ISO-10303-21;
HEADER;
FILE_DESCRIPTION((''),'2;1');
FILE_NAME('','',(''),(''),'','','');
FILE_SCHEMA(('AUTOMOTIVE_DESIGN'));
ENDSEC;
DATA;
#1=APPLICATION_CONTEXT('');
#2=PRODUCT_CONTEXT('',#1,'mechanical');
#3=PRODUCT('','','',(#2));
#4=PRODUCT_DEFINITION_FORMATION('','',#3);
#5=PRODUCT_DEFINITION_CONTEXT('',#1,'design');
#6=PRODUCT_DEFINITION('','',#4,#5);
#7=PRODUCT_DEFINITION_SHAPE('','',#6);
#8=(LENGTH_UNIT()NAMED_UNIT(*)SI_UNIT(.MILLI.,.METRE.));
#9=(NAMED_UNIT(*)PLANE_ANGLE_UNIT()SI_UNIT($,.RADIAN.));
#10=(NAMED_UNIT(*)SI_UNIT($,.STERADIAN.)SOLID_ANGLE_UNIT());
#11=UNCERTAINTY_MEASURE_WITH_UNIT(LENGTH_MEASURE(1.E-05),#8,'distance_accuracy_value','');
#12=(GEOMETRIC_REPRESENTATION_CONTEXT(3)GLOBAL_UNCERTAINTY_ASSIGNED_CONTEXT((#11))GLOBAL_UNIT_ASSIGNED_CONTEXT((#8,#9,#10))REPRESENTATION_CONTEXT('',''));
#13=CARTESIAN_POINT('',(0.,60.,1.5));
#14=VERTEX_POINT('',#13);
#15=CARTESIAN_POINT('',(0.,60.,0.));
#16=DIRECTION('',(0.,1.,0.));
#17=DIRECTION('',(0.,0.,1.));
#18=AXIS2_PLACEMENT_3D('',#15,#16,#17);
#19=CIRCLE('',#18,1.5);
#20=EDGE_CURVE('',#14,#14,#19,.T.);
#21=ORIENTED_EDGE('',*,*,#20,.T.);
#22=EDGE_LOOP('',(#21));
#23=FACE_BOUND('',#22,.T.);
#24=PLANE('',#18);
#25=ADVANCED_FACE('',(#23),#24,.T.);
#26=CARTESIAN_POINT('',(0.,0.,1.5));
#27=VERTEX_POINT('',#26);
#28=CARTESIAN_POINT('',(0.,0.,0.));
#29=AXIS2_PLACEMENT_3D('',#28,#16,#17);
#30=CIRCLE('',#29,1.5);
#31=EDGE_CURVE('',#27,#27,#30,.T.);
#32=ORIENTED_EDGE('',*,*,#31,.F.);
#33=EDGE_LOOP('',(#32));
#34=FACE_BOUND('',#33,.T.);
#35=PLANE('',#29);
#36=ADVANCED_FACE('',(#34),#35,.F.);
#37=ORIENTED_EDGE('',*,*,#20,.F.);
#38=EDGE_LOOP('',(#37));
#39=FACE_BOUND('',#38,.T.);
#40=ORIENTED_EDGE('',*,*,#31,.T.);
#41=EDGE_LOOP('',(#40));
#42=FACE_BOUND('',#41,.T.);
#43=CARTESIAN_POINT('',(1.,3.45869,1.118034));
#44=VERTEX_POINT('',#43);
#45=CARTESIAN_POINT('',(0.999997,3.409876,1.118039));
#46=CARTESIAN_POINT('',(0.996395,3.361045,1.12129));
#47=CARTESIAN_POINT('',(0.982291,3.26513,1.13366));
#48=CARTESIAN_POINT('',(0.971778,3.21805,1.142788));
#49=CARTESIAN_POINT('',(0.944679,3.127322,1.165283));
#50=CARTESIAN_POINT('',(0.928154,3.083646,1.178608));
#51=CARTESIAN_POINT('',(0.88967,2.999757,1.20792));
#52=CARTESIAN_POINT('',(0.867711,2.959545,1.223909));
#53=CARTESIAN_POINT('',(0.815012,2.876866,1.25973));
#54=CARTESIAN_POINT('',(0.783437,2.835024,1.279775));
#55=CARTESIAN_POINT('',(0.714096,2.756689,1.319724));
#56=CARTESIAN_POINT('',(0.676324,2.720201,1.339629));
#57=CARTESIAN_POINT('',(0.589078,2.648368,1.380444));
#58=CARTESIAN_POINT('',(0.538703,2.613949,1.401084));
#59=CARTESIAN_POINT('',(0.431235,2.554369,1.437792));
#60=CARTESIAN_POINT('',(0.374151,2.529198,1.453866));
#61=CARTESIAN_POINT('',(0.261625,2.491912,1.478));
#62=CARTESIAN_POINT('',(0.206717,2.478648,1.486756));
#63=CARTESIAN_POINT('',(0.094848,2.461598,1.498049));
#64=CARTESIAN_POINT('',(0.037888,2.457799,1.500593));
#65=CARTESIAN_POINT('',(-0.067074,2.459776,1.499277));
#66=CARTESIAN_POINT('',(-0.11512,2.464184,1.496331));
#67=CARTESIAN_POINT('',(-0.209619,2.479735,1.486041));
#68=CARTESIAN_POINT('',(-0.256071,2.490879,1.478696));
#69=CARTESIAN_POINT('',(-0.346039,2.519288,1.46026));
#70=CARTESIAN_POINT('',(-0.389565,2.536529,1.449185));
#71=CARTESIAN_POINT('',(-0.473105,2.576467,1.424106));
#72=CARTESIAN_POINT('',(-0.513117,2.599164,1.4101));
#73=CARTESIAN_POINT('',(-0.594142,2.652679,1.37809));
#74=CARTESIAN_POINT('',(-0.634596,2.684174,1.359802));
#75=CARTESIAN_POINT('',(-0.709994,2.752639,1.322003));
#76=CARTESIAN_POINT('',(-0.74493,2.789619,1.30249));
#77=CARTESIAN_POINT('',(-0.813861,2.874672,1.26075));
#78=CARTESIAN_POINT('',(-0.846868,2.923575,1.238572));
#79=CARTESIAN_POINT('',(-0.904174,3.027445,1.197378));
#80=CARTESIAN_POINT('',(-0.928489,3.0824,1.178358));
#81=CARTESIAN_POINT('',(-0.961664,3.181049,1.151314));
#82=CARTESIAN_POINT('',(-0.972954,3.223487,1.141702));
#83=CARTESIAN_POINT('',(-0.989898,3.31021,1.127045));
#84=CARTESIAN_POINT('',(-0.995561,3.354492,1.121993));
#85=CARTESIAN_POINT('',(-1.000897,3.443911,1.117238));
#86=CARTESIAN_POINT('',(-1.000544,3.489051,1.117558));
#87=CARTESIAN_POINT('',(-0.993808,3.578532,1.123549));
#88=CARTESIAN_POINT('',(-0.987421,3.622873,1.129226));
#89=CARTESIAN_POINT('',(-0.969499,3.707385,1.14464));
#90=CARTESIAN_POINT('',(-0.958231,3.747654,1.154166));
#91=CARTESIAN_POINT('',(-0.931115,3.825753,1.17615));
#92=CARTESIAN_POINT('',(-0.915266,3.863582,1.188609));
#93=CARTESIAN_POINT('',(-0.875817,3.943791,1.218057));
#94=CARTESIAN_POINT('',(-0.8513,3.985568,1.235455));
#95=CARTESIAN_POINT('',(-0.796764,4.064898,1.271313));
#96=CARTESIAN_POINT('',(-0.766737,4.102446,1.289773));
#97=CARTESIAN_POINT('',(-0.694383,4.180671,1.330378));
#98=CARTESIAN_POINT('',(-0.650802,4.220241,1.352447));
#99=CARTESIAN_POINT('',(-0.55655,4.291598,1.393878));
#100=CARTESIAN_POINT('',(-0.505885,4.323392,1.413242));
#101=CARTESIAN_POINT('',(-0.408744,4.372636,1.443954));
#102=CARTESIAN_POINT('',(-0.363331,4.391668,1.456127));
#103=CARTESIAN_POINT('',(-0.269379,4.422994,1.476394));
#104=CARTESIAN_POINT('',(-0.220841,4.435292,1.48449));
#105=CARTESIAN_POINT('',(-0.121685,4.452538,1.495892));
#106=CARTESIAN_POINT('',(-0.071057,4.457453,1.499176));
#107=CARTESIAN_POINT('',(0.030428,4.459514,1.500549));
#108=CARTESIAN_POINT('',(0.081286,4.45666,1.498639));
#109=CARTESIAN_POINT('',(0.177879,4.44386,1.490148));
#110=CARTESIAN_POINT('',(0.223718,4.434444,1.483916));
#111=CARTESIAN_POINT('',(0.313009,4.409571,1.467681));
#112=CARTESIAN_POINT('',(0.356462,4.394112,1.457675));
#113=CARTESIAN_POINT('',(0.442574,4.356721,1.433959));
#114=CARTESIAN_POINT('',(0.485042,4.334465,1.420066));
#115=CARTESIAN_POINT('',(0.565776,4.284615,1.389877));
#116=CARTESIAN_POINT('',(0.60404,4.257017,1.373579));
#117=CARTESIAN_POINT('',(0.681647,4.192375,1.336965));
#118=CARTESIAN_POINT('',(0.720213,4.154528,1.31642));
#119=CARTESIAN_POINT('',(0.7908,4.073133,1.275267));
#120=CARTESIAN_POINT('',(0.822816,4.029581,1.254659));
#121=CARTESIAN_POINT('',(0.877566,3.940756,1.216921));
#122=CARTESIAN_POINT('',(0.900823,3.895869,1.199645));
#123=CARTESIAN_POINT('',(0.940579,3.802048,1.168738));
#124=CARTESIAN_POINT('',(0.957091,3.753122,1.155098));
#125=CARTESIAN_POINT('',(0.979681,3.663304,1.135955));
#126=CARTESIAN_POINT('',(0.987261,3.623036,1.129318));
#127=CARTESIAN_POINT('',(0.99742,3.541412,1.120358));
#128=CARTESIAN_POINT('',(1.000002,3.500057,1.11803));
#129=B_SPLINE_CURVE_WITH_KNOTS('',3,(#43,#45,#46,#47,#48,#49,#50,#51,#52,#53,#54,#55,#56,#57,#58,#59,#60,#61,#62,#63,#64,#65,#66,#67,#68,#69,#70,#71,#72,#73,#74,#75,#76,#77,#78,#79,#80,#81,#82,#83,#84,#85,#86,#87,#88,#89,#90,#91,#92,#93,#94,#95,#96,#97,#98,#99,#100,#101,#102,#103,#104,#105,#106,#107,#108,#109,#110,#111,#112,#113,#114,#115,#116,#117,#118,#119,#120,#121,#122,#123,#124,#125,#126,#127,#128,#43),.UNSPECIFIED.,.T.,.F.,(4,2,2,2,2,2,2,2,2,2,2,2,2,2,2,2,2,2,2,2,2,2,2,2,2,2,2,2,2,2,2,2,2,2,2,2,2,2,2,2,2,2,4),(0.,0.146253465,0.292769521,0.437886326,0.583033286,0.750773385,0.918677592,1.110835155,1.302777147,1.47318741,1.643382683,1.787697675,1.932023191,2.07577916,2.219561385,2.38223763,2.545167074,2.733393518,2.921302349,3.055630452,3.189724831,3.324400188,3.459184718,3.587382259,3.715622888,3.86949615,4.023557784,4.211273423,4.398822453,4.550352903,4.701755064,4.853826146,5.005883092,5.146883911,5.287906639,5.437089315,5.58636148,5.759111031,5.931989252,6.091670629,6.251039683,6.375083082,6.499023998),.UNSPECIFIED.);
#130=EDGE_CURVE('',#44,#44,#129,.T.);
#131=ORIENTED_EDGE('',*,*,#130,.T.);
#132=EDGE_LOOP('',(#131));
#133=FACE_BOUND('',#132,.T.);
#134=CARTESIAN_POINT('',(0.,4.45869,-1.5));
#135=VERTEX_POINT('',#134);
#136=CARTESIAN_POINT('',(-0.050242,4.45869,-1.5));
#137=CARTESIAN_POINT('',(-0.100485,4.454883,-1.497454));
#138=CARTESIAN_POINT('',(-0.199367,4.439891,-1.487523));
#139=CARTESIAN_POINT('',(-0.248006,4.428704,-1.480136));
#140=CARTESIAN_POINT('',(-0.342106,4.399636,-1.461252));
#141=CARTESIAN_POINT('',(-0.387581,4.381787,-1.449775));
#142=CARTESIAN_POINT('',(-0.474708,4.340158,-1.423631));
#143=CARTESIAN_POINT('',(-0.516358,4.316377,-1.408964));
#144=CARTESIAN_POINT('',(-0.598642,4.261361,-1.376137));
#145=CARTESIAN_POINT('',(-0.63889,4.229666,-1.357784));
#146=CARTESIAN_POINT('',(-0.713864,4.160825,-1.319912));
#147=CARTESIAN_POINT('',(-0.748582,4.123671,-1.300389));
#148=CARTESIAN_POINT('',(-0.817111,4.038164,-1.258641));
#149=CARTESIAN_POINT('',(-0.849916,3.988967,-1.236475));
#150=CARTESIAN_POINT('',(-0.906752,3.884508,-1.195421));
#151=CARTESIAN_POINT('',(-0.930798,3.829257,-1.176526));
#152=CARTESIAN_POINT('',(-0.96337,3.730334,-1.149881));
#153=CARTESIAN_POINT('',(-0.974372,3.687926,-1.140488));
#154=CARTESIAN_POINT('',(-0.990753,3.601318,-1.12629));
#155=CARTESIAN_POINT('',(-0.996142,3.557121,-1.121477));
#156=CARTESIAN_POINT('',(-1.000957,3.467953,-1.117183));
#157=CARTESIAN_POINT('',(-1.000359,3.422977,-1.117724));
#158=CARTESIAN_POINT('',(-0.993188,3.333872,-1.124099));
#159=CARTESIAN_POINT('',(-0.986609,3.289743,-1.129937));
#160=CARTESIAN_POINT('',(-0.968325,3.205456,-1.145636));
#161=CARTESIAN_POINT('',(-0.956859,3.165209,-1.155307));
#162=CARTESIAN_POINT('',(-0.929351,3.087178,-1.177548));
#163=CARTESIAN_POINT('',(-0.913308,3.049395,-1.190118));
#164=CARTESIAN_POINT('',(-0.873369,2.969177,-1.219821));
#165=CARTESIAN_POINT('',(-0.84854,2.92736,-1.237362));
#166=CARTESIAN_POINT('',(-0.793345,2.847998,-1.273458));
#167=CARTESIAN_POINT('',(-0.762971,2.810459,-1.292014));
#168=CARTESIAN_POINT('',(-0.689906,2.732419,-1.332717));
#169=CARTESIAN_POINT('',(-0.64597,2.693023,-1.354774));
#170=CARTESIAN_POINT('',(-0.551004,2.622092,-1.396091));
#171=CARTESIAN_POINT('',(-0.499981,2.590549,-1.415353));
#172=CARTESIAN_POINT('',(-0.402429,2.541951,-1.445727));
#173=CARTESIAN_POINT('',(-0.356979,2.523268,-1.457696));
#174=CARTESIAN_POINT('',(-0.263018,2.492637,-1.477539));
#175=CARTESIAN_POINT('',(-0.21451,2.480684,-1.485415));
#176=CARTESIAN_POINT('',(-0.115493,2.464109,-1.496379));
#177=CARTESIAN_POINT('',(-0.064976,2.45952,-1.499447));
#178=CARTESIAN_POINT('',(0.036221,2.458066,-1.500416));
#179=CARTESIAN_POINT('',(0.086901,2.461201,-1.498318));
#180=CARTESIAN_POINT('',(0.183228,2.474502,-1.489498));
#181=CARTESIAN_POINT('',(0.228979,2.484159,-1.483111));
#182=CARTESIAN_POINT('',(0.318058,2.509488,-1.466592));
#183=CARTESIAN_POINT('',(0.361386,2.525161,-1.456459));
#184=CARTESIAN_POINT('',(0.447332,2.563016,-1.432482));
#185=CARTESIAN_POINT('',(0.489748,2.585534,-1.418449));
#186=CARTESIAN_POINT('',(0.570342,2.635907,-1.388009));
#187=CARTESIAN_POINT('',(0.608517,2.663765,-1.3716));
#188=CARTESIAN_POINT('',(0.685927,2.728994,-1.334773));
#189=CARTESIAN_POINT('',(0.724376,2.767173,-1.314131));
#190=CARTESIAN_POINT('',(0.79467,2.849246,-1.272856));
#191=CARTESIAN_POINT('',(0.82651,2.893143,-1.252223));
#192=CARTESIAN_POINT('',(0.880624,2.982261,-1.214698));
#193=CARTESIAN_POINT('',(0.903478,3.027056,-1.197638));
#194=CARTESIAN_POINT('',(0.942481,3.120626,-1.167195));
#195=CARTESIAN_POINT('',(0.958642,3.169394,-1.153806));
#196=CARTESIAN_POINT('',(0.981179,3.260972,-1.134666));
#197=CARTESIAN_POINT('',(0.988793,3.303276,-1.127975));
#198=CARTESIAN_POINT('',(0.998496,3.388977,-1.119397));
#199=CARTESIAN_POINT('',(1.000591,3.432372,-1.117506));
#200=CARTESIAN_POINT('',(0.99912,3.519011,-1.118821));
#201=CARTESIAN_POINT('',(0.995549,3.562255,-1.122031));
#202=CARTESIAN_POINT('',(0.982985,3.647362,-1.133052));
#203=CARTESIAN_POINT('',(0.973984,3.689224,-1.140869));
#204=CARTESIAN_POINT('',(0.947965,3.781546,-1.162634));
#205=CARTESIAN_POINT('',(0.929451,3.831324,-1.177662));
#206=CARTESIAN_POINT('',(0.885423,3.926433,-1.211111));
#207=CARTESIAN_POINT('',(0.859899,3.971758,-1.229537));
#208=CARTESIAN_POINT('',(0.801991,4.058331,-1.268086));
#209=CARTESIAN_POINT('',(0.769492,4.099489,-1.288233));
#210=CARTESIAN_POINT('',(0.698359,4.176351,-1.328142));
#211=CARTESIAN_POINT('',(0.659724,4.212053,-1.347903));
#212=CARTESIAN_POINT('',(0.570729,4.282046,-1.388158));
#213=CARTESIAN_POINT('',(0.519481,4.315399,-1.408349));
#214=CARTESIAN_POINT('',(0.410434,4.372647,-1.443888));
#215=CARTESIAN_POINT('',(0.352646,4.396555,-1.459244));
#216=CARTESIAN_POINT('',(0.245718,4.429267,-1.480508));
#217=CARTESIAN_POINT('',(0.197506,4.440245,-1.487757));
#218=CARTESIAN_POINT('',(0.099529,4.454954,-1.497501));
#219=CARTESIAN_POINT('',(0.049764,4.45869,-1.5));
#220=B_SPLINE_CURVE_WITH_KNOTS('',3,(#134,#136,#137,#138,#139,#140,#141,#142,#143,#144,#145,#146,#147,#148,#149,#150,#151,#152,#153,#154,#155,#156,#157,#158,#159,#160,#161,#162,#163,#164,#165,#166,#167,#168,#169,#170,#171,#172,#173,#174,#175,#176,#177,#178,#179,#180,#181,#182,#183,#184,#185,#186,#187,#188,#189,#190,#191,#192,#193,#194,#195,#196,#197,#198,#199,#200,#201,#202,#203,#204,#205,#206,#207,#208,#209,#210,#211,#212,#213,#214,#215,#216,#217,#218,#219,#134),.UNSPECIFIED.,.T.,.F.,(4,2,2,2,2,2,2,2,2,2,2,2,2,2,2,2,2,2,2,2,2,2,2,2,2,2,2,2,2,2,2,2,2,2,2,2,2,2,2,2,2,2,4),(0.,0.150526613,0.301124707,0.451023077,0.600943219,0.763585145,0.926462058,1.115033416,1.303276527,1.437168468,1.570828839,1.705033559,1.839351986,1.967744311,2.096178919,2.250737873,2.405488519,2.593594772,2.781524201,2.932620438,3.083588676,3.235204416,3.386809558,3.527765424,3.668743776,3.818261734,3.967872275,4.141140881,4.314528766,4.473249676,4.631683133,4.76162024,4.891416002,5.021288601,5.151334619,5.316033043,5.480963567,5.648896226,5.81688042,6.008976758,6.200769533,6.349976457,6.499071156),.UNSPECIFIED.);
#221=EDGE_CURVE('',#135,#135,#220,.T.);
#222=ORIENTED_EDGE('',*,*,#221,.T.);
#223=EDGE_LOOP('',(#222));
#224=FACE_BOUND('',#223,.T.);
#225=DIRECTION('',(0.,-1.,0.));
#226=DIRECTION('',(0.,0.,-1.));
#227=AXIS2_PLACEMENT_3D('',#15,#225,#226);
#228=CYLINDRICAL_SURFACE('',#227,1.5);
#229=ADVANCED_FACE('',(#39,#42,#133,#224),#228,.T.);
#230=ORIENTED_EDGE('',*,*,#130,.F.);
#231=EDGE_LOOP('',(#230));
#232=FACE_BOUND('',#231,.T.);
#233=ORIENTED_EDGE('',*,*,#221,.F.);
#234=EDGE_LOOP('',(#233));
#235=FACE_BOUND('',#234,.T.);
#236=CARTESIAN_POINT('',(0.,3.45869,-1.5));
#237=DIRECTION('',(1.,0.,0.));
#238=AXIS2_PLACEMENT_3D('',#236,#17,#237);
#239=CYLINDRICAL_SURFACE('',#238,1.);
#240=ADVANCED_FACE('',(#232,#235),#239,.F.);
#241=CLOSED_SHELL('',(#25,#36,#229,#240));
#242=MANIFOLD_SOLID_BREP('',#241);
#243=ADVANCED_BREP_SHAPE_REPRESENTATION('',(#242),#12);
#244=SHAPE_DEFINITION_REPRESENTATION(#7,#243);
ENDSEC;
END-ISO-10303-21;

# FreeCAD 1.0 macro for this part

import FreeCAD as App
import Part
import Sketcher

V = App.Vector
Q = App.Units.Quantity

doc = App.newDocument("Part")
params = doc.addObject("Spreadsheet::Sheet", "Params")
for row, (alias, value) in enumerate([
    ("sketch1_diameter", "3 mm"),
    ("pad1_length", "60 mm"),
    ("sketch2_diameter", "2 mm"),
], start=1):
    params.set(f"A{row}", alias)
    params.set(f"B{row}", "=" + value)
    params.setAlias(f"B{row}", alias)

body = doc.addObject("PartDesign::Body", "Body")

# Sketch on XZ plane
sketch1 = body.newObject("Sketcher::SketchObject", "Sketch")
sketch1.AttachmentSupport = (doc.getObject("XZ_Plane"), [""])
sketch1.MapMode = "FlatFace"
sketch1.addGeometry(Part.Circle(V(0, 0, 0), V(0, 0, 1), 1.5), False)
sketch1.addConstraint([
    Sketcher.Constraint("Coincident", 0, 3, -1, 1),
    Sketcher.Constraint("Diameter", 0, Q("3 mm")),
])
sketch1.setExpression("Constraints[1]", "Params.sketch1_diameter")
pad1 = body.newObject("PartDesign::Pad", "Pad")
pad1.Profile = sketch1
pad1.setExpression("Length", "Params.pad1_length")
pad1.Reversed = True

# Sketch on XY plane
sketch2 = body.newObject("Sketcher::SketchObject", "Sketch001")
sketch2.AttachmentSupport = (doc.getObject("XY_Plane"), [""])
sketch2.MapMode = "FlatFace"
sketch2.addGeometry(Part.Circle(V(0, 3.45869, 0), V(0, 0, 1), 1), False)
sketch2.addConstraint([
    Sketcher.Constraint("PointOnObject", 0, 3, -2),
    Sketcher.Constraint("Diameter", 0, Q("2 mm")),
    Sketcher.Constraint("DistanceY", -1, 1, 0, 3, Q("3.45869 mm")),
])
sketch2.setExpression("Constraints[1]", "Params.sketch2_diameter")
pocket1 = body.newObject("PartDesign::Pocket", "Pocket")
pocket1.Profile = sketch2
pocket1.Type = "ThroughAll"
pocket1.Midplane = True

doc.recompute()
